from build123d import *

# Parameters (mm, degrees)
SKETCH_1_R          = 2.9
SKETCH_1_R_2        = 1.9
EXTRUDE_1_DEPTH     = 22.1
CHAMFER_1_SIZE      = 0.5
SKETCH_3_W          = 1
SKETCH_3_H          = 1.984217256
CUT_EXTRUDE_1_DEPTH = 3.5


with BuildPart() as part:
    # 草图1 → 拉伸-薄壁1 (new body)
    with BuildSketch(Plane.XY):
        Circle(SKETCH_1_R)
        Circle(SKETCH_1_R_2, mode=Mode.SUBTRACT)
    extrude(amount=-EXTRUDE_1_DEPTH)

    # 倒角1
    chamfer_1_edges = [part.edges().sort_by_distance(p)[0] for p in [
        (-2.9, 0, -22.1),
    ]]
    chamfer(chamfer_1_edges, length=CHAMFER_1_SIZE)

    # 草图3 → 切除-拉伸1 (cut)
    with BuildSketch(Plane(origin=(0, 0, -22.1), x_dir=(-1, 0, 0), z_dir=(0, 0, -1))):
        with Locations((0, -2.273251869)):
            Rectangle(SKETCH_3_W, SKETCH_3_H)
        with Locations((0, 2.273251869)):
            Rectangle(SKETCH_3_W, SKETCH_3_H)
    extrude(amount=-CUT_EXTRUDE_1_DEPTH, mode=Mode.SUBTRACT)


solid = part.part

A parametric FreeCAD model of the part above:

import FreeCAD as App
import Part
import Sketcher
from FreeCAD import Vector
Q = App.Units.Quantity


def edges_at(feature, points):
    """Names of the edges that pass closest to the given points."""
    edges = feature.Shape.Edges
    near = lambda p: min(range(len(edges)), key=lambda i: edges[i].distToShape(Part.Vertex(*p))[0])
    return sorted({f"Edge{near(p) + 1}" for p in points})

doc = App.newDocument("Part")
body = doc.addObject("PartDesign::Body", "Body")

sketch1 = body.newObject("Sketcher::SketchObject", "Sketch")
sketch1.AttachmentSupport = (doc.getObject("XY_Plane"), [""])
sketch1.MapMode = "FlatFace"
sketch1.addGeometry([
    Part.Circle(Vector(0, 0, 0), Vector(0, 0, 1), 2.9),
    Part.Circle(Vector(0, 0, 0), Vector(0, 0, 1), 1.9),
], False)
sketch1.addConstraint([
    Sketcher.Constraint("Coincident", 0, 3, -1, 1),
    Sketcher.Constraint("Coincident", 1, 3, -1, 1),
    Sketcher.Constraint("Diameter", 0, Q("5.8 mm")),
    Sketcher.Constraint("Diameter", 1, Q("3.8 mm")),
])
pad1 = body.newObject("PartDesign::Pad", "Pad")
pad1.Profile = sketch1
pad1.Length = 22.1
pad1.Reversed = True
doc.recompute()

chamfer = body.newObject("PartDesign::Chamfer", "Chamfer")
chamfer.Base = (pad1, edges_at(pad1, [(-2.9, 0, -22.1)]))
chamfer.Size = 0.5

sketch2 = body.newObject("Sketcher::SketchObject", "Sketch001")
sketch2.AttachmentSupport = (doc.getObject("XY_Plane"), [""])
sketch2.MapMode = "FlatFace"
sketch2.AttachmentOffset = App.Placement(Vector(0, 0, -22.1), App.Rotation())
sketch2.addGeometry([
    Part.LineSegment(Vector(0.5, -1.3, 0), Vector(0.5, -3.3, 0)),
    Part.LineSegment(Vector(0.5, -3.3, 0), Vector(-0.5, -3.3, 0)),
    Part.LineSegment(Vector(-0.5, -3.3, 0), Vector(-0.5, -1.3, 0)),
    Part.LineSegment(Vector(-0.5, -1.3, 0), Vector(0.5, -1.3, 0)),
    Part.LineSegment(Vector(0.5, 3.3, 0), Vector(0.5, 1.3, 0)),
    Part.LineSegment(Vector(0.5, 1.3, 0), Vector(-0.5, 1.3, 0)),
    Part.LineSegment(Vector(-0.5, 1.3, 0), Vector(-0.5, 3.3, 0)),
    Part.LineSegment(Vector(-0.5, 3.3, 0), Vector(0.5, 3.3, 0)),
], False)
sketch2.addConstraint([
    Sketcher.Constraint("Coincident", 0, 2, 1, 1),
    Sketcher.Constraint("Coincident", 1, 2, 2, 1),
    Sketcher.Constraint("Coincident", 2, 2, 3, 1),
    Sketcher.Constraint("Coincident", 3, 2, 0, 1),
    Sketcher.Constraint("Coincident", 4, 2, 5, 1),
    Sketcher.Constraint("Coincident", 5, 2, 6, 1),
    Sketcher.Constraint("Coincident", 6, 2, 7, 1),
    Sketcher.Constraint("Coincident", 7, 2, 4, 1),
    Sketcher.Constraint("Vertical", 0),
    Sketcher.Constraint("Horizontal", 1),
    Sketcher.Constraint("Vertical", 2),
    Sketcher.Constraint("Horizontal", 3),
    Sketcher.Constraint("Vertical", 4),
    Sketcher.Constraint("Horizontal", 5),
    Sketcher.Constraint("Vertical", 6),
    Sketcher.Constraint("Horizontal", 7),
    Sketcher.Constraint("Symmetric", 2, 2, 4, 2, -1, 1),
    Sketcher.Constraint("Symmetric", 0, 2, 6, 2, -1, 1),
    Sketcher.Constraint("Vertical", 3, 2, 4, 2),
    Sketcher.Constraint("DistanceX", 1, 2, 1, 1, Q("1 mm")),
    Sketcher.Constraint("DistanceY", 0, 2, 0, 1, Q("1.984217 mm")),
    Sketcher.Constraint("DistanceY", 0, 2, -1, 1, Q("3.26536 mm")),
])
pocket1 = body.newObject("PartDesign::Pocket", "Pocket")
pocket1.Profile = sketch2
pocket1.Length = 3.5
pocket1.Reversed = True

doc.recompute()
